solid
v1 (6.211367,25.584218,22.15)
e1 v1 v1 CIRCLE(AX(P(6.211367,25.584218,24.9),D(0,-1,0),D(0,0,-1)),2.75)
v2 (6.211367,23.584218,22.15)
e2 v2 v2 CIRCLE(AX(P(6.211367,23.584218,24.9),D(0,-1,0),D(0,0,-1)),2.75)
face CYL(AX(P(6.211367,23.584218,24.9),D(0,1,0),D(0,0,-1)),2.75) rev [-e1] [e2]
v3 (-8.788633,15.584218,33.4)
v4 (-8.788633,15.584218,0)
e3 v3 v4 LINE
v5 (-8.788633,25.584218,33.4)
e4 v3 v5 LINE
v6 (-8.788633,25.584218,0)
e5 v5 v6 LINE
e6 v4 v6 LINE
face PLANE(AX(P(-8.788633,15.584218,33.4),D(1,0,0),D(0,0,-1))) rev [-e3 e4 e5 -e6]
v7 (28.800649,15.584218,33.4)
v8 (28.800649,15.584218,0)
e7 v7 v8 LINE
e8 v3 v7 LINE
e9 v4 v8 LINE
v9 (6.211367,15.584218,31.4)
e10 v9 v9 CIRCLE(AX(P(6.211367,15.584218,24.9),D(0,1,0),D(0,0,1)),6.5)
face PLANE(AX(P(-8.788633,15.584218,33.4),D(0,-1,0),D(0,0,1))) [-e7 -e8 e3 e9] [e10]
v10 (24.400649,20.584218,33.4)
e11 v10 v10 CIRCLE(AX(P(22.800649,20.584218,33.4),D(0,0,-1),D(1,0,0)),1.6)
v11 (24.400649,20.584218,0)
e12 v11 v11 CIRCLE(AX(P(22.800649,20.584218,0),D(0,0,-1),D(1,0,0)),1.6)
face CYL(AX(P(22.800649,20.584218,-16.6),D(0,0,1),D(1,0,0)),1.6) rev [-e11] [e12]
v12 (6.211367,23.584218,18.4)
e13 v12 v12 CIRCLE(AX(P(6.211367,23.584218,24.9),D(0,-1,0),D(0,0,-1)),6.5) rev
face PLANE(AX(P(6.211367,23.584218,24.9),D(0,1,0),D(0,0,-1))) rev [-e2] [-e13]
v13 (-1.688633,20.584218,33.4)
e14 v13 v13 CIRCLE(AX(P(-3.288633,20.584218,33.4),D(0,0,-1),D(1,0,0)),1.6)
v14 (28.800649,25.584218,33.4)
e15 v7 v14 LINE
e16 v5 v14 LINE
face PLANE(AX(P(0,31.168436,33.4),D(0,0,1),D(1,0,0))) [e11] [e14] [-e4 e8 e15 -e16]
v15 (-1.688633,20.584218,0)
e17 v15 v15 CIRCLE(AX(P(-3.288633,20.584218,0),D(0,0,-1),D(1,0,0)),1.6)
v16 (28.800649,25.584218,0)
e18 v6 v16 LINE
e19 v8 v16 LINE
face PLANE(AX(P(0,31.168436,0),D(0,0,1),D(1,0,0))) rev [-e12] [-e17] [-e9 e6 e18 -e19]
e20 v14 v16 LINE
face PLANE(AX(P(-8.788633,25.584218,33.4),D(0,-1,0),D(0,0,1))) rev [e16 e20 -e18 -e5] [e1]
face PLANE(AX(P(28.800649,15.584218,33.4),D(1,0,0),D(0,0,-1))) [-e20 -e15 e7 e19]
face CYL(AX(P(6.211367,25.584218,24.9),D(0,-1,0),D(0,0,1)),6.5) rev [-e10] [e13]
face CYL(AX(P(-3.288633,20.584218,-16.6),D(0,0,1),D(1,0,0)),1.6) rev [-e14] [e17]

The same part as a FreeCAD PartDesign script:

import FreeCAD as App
import Part
import Sketcher

V = App.Vector
Q = App.Units.Quantity


def add_polygon(sketch, points):
    """Adds a closed chain of lines whose ends are joined by coincident constraints."""
    first, n = sketch.GeometryCount, len(points)
    for a, b in zip(points, points[1:] + points[:1]):
        sketch.addGeometry(Part.LineSegment(App.Vector(*a, 0), App.Vector(*b, 0)), False)
    for i in range(n):
        sketch.addConstraint(Sketcher.Constraint("Coincident", first + i, 2, first + (i + 1) % n, 1))

doc = App.newDocument("Part")
body = doc.addObject("PartDesign::Body", "Body")

sketch1 = body.newObject("Sketcher::SketchObject", "Sketch")
sketch1.AttachmentSupport = (doc.getObject("XY_Plane"), [""])
sketch1.MapMode = "FlatFace"
add_polygon(sketch1, [(-9, 16), (-9, 6), (29, 6), (29, 16)])
sketch1.addConstraint(Sketcher.Constraint("Vertical", 0))
sketch1.addConstraint(Sketcher.Constraint("Horizontal", 1))
sketch1.addConstraint(Sketcher.Constraint("Vertical", 2))
sketch1.addConstraint(Sketcher.Constraint("Horizontal", 3))
sketch1.addConstraint(Sketcher.Constraint("DistanceY", 0, 2, 0, 1, Q("10 mm")))
sketch1.addConstraint(Sketcher.Constraint("DistanceX", 1, 1, 1, 2, Q("37.589282 mm")))
sketch1.addConstraint(Sketcher.Constraint("DistanceY", -1, 1, 0, 2, Q("5.584218 mm")))
sketch1.addConstraint(Sketcher.Constraint("DistanceX", -1, 1, 1, 2, Q("28.800649 mm")))
pad1 = body.newObject("PartDesign::Pad", "Pad")
pad1.Profile = sketch1
pad1.Length = 33.4

sketch2 = body.newObject("Sketcher::SketchObject", "Sketch001")
sketch2.AttachmentSupport = (doc.getObject("XZ_Plane"), [""])
sketch2.MapMode = "FlatFace"
sketch2.AttachmentOffset = App.Placement(V(0, 0, -15.584218), App.Rotation())
sketch2.addGeometry(Part.Circle(V(6, 25, 0), V(0, 0, 1), 6), False)
sketch2.addConstraint(Sketcher.Constraint("Diameter", 0, Q("13 mm")))
sketch2.addConstraint(Sketcher.Constraint("DistanceY", -1, 1, 0, 3, Q("24.9 mm")))
sketch2.addConstraint(Sketcher.Constraint("DistanceX", -1, 1, 0, 3, Q("6.211367 mm")))
pocket1 = body.newObject("PartDesign::Pocket", "Pocket")
pocket1.Profile = sketch2
pocket1.Length = 10
pocket1.Reversed = True

sketch3 = body.newObject("Sketcher::SketchObject", "Sketch002")
sketch3.AttachmentSupport = (doc.getObject("XY_Plane"), [""])
sketch3.MapMode = "FlatFace"
sketch3.AttachmentOffset = App.Placement(V(0, 0, 33.4), App.Rotation())
sketch3.addGeometry(Part.Circle(V(-3.3, 10.6, 0), V(0, 0, 1), 1.6), False)
sketch3.addGeometry(Part.Circle(V(22.8, 10.6, 0), V(0, 0, 1), 1.6), False)
sketch3.addConstraint(Sketcher.Constraint("Equal", 0, 1))
sketch3.addConstraint(Sketcher.Constraint("Horizontal", 0, 3, 1, 3))
sketch3.addConstraint(Sketcher.Constraint("Diameter", 0, Q("3.2 mm")))
sketch3.addConstraint(Sketcher.Constraint("DistanceY", -1, 1, 0, 3, Q("10.584218 mm")))
sketch3.addConstraint(Sketcher.Constraint("DistanceX", -1, 1, 1, 3, Q("22.800649 mm")))
sketch3.addConstraint(Sketcher.Constraint("DistanceX", 0, 3, 1, 3, Q("26.089282 mm")))
pocket2 = body.newObject("PartDesign::Pocket", "Pocket001")
pocket2.Profile = sketch3
pocket2.Length = 50

sketch4 = body.newObject("Sketcher::SketchObject", "Sketch003")
sketch4.AttachmentSupport = (doc.getObject("XZ_Plane"), [""])
sketch4.MapMode = "FlatFace"
sketch4.AttachmentOffset = App.Placement(V(0, 0, -5.584218), App.Rotation())
sketch4.addGeometry(Part.Circle(V(6.2, 24.9, 0), V(0, 0, 1), 6.6), False)
sketch4.addGeometry(Part.Circle(V(6.2, 24.9, 0), V(0, 0, 1), 2.8), False)
sketch4.addConstraint(Sketcher.Constraint("Coincident", 1, 3, 0, 3))
sketch4.addConstraint(Sketcher.Constraint("Diameter", 0, Q("13.2 mm")))
sketch4.addConstraint(Sketcher.Constraint("Diameter", 1, Q("5.5 mm")))
sketch4.addConstraint(Sketcher.Constraint("DistanceY", -1, 1, 0, 3, Q("24.9 mm")))
sketch4.addConstraint(Sketcher.Constraint("DistanceX", -1, 1, 0, 3, Q("6.211367 mm")))
pad2 = body.newObject("PartDesign::Pad", "Pad001")
pad2.Profile = sketch4
pad2.Length = 2
pad2.Reversed = True
body2 = doc.addObject("PartDesign::Body", "Body001")
doc.recompute()

mirroring = doc.addObject("Part::Mirroring", "Mirroring")
mirroring.Source = body
mirroring.Base = V(-8.788633, 15.584218, 33.4)
mirroring.Normal = V(0, 1, 0)
body2.BaseFeature = mirroring
doc.recompute()
body.Visibility = False
mirroring.Visibility = False

doc.recompute()
